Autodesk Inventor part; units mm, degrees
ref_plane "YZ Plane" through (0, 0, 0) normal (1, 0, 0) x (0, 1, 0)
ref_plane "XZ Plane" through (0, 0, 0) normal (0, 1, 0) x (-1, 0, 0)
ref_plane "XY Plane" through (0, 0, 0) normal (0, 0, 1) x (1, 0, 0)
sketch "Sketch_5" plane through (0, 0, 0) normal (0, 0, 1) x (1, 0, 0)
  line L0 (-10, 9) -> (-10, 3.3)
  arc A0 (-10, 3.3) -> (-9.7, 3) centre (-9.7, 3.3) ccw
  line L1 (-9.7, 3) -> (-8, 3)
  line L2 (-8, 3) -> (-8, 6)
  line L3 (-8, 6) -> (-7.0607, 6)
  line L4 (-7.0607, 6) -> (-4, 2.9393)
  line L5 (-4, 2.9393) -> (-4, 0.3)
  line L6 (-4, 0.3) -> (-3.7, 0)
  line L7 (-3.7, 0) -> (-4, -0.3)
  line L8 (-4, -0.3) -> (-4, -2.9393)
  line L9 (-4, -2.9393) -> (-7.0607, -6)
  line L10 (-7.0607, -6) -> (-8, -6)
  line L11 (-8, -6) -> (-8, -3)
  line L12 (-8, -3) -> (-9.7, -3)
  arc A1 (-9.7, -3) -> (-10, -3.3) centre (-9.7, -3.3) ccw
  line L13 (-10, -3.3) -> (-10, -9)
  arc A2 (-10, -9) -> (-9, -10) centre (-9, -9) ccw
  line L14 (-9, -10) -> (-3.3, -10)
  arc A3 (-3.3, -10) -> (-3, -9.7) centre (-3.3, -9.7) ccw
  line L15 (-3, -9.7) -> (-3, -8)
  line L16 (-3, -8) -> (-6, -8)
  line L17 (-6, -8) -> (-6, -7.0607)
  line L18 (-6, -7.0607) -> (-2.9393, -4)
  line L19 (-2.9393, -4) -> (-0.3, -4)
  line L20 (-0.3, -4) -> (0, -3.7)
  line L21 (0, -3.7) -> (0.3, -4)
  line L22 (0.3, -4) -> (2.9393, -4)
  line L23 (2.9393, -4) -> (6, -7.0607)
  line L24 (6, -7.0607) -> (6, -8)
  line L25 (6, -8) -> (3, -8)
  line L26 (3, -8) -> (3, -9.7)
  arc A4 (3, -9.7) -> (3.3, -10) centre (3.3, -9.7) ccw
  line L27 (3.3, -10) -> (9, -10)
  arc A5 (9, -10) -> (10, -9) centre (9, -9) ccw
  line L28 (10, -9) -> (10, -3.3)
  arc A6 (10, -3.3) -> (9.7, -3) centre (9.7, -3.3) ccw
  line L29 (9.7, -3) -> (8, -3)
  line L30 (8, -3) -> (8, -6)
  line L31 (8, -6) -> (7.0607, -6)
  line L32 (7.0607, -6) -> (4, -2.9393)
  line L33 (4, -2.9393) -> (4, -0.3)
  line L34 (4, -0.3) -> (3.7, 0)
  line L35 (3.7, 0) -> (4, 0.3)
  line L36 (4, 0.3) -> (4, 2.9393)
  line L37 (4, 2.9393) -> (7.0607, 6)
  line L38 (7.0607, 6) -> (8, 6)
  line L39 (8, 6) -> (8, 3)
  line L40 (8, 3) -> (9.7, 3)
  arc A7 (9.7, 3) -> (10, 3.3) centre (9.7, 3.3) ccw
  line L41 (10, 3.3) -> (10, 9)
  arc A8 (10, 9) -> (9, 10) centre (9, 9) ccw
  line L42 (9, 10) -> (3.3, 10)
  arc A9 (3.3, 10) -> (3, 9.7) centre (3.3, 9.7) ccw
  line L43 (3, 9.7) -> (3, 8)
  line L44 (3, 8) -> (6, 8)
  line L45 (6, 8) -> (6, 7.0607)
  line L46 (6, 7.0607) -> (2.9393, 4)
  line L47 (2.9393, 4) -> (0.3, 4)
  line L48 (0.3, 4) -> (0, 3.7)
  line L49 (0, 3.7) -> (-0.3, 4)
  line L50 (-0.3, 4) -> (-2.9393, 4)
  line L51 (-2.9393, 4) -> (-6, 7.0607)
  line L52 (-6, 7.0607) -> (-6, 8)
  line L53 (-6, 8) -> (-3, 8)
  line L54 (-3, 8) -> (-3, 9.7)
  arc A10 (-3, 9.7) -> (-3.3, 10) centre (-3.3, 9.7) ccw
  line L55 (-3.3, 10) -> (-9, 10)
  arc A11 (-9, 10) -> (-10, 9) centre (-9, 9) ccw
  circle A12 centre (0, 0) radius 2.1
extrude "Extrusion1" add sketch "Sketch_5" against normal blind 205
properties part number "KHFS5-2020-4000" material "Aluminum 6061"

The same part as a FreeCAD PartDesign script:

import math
import FreeCAD as App
import Part
import Sketcher

V = App.Vector
Q = App.Units.Quantity

doc = App.newDocument("Part")
body = doc.addObject("PartDesign::Body", "Body")

sketch1 = body.newObject("Sketcher::SketchObject", "Sketch")
sketch1.AttachmentSupport = (doc.getObject("XY_Plane"), [""])
sketch1.MapMode = "FlatFace"
sketch1.addGeometry([
    Part.ArcOfCircle(Part.Circle(V(-9, 9, 0), V(0, 0, 1), 1), math.radians(90), math.radians(180)),
    Part.LineSegment(V(-10, 9, 0), V(-10, 3.3, 0)),
    Part.ArcOfCircle(Part.Circle(V(-9.7, 3.3, 0), V(0, 0, 1), 0.3), math.radians(180), math.radians(270)),
    Part.LineSegment(V(-9.7, 3, 0), V(-8, 3, 0)),
    Part.LineSegment(V(-8, 3, 0), V(-8, 6, 0)),
    Part.LineSegment(V(-8, 6, 0), V(-7.0607, 6, 0)),
    Part.LineSegment(V(-7.0607, 6, 0), V(-4, 2.9393, 0)),
    Part.LineSegment(V(-4, 2.9393, 0), V(-4, 0.3, 0)),
    Part.LineSegment(V(-4, 0.3, 0), V(-3.7, 0, 0)),
    Part.LineSegment(V(-3.7, 0, 0), V(-4, -0.3, 0)),
    Part.LineSegment(V(-4, -0.3, 0), V(-4, -2.9393, 0)),
    Part.LineSegment(V(-4, -2.9393, 0), V(-7.0607, -6, 0)),
    Part.LineSegment(V(-7.0607, -6, 0), V(-8, -6, 0)),
    Part.LineSegment(V(-8, -6, 0), V(-8, -3, 0)),
    Part.LineSegment(V(-8, -3, 0), V(-9.7, -3, 0)),
    Part.ArcOfCircle(Part.Circle(V(-9.7, -3.3, 0), V(0, 0, 1), 0.3), math.radians(90), math.radians(180)),
    Part.LineSegment(V(-10, -3.3, 0), V(-10, -9, 0)),
    Part.ArcOfCircle(Part.Circle(V(-9, -9, 0), V(0, 0, 1), 1), math.radians(180), math.radians(270)),
    Part.LineSegment(V(-9, -10, 0), V(-3.3, -10, 0)),
    Part.ArcOfCircle(Part.Circle(V(-3.3, -9.7, 0), V(0, 0, 1), 0.3), math.radians(-90), math.radians(0)),
    Part.LineSegment(V(-3, -9.7, 0), V(-3, -8, 0)),
    Part.LineSegment(V(-3, -8, 0), V(-6, -8, 0)),
    Part.LineSegment(V(-6, -8, 0), V(-6, -7.0607, 0)),
    Part.LineSegment(V(-6, -7.0607, 0), V(-2.9393, -4, 0)),
    Part.LineSegment(V(-2.9393, -4, 0), V(-0.3, -4, 0)),
    Part.LineSegment(V(-0.3, -4, 0), V(0, -3.7, 0)),
    Part.LineSegment(V(0, -3.7, 0), V(0.3, -4, 0)),
    Part.LineSegment(V(0.3, -4, 0), V(2.9393, -4, 0)),
    Part.LineSegment(V(2.9393, -4, 0), V(6, -7.0607, 0)),
    Part.LineSegment(V(6, -7.0607, 0), V(6, -8, 0)),
    Part.LineSegment(V(6, -8, 0), V(3, -8, 0)),
    Part.LineSegment(V(3, -8, 0), V(3, -9.7, 0)),
    Part.ArcOfCircle(Part.Circle(V(3.3, -9.7, 0), V(0, 0, 1), 0.3), math.radians(180), math.radians(270)),
    Part.LineSegment(V(3.3, -10, 0), V(9, -10, 0)),
    Part.ArcOfCircle(Part.Circle(V(9, -9, 0), V(0, 0, 1), 1), math.radians(-90), math.radians(0)),
    Part.LineSegment(V(10, -9, 0), V(10, -3.3, 0)),
    Part.ArcOfCircle(Part.Circle(V(9.7, -3.3, 0), V(0, 0, 1), 0.3), math.radians(0), math.radians(90)),
    Part.LineSegment(V(9.7, -3, 0), V(8, -3, 0)),
    Part.LineSegment(V(8, -3, 0), V(8, -6, 0)),
    Part.LineSegment(V(8, -6, 0), V(7.0607, -6, 0)),
    Part.LineSegment(V(7.0607, -6, 0), V(4, -2.9393, 0)),
    Part.LineSegment(V(4, -2.9393, 0), V(4, -0.3, 0)),
    Part.LineSegment(V(4, -0.3, 0), V(3.7, 0, 0)),
    Part.LineSegment(V(3.7, 0, 0), V(4, 0.3, 0)),
    Part.LineSegment(V(4, 0.3, 0), V(4, 2.9393, 0)),
    Part.LineSegment(V(4, 2.9393, 0), V(7.0607, 6, 0)),
    Part.LineSegment(V(7.0607, 6, 0), V(8, 6, 0)),
    Part.LineSegment(V(8, 6, 0), V(8, 3, 0)),
    Part.LineSegment(V(8, 3, 0), V(9.7, 3, 0)),
    Part.ArcOfCircle(Part.Circle(V(9.7, 3.3, 0), V(0, 0, 1), 0.3), math.radians(-90), math.radians(0)),
    Part.LineSegment(V(10, 3.3, 0), V(10, 9, 0)),
    Part.ArcOfCircle(Part.Circle(V(9, 9, 0), V(0, 0, 1), 1), math.radians(0), math.radians(90)),
    Part.LineSegment(V(9, 10, 0), V(3.3, 10, 0)),
    Part.ArcOfCircle(Part.Circle(V(3.3, 9.7, 0), V(0, 0, 1), 0.3), math.radians(90), math.radians(180)),
    Part.LineSegment(V(3, 9.7, 0), V(3, 8, 0)),
    Part.LineSegment(V(3, 8, 0), V(6, 8, 0)),
    Part.LineSegment(V(6, 8, 0), V(6, 7.0607, 0)),
    Part.LineSegment(V(6, 7.0607, 0), V(2.9393, 4, 0)),
    Part.LineSegment(V(2.9393, 4, 0), V(0.3, 4, 0)),
    Part.LineSegment(V(0.3, 4, 0), V(0, 3.7, 0)),
    Part.LineSegment(V(0, 3.7, 0), V(-0.3, 4, 0)),
    Part.LineSegment(V(-0.3, 4, 0), V(-2.9393, 4, 0)),
    Part.LineSegment(V(-2.9393, 4, 0), V(-6, 7.0607, 0)),
    Part.LineSegment(V(-6, 7.0607, 0), V(-6, 8, 0)),
    Part.LineSegment(V(-6, 8, 0), V(-3, 8, 0)),
    Part.LineSegment(V(-3, 8, 0), V(-3, 9.7, 0)),
    Part.ArcOfCircle(Part.Circle(V(-3.3, 9.7, 0), V(0, 0, 1), 0.3), math.radians(0), math.radians(90)),
    Part.LineSegment(V(-3.3, 10, 0), V(-9, 10, 0)),
    Part.Circle(V(0, 0, 0), V(0, 0, 1), 2.1),
], False)
sketch1.addConstraint([
    Sketcher.Constraint("Tangent", 0, 2, 1, 1),
    Sketcher.Constraint("Tangent", 1, 2, 2, 1),
    Sketcher.Constraint("Tangent", 2, 2, 3, 1),
    Sketcher.Constraint("Coincident", 3, 2, 4, 1),
    Sketcher.Constraint("Coincident", 4, 2, 5, 1),
    Sketcher.Constraint("Coincident", 5, 2, 6, 1),
    Sketcher.Constraint("Coincident", 6, 2, 7, 1),
    Sketcher.Constraint("Coincident", 7, 2, 8, 1),
    Sketcher.Constraint("Coincident", 8, 2, 9, 1),
    Sketcher.Constraint("Coincident", 9, 2, 10, 1),
    Sketcher.Constraint("Coincident", 10, 2, 11, 1),
    Sketcher.Constraint("Coincident", 11, 2, 12, 1),
    Sketcher.Constraint("Coincident", 12, 2, 13, 1),
    Sketcher.Constraint("Coincident", 13, 2, 14, 1),
    Sketcher.Constraint("Tangent", 14, 2, 15, 1),
    Sketcher.Constraint("Tangent", 15, 2, 16, 1),
    Sketcher.Constraint("Tangent", 16, 2, 17, 1),
    Sketcher.Constraint("Tangent", 17, 2, 18, 1),
    Sketcher.Constraint("Tangent", 18, 2, 19, 1),
    Sketcher.Constraint("Tangent", 19, 2, 20, 1),
    Sketcher.Constraint("Coincident", 20, 2, 21, 1),
    Sketcher.Constraint("Coincident", 21, 2, 22, 1),
    Sketcher.Constraint("Coincident", 22, 2, 23, 1),
    Sketcher.Constraint("Coincident", 23, 2, 24, 1),
    Sketcher.Constraint("Coincident", 24, 2, 25, 1),
    Sketcher.Constraint("Coincident", 25, 2, 26, 1),
    Sketcher.Constraint("Coincident", 26, 2, 27, 1),
    Sketcher.Constraint("Coincident", 27, 2, 28, 1),
    Sketcher.Constraint("Coincident", 28, 2, 29, 1),
    Sketcher.Constraint("Coincident", 29, 2, 30, 1),
    Sketcher.Constraint("Coincident", 30, 2, 31, 1),
    Sketcher.Constraint("Tangent", 31, 2, 32, 1),
    Sketcher.Constraint("Tangent", 32, 2, 33, 1),
    Sketcher.Constraint("Tangent", 33, 2, 34, 1),
    Sketcher.Constraint("Tangent", 34, 2, 35, 1),
    Sketcher.Constraint("Tangent", 35, 2, 36, 1),
    Sketcher.Constraint("Tangent", 36, 2, 37, 1),
    Sketcher.Constraint("Coincident", 37, 2, 38, 1),
    Sketcher.Constraint("Coincident", 38, 2, 39, 1),
    Sketcher.Constraint("Coincident", 39, 2, 40, 1),
    Sketcher.Constraint("Coincident", 40, 2, 41, 1),
    Sketcher.Constraint("Coincident", 41, 2, 42, 1),
    Sketcher.Constraint("Coincident", 42, 2, 43, 1),
    Sketcher.Constraint("Coincident", 43, 2, 44, 1),
    Sketcher.Constraint("Coincident", 44, 2, 45, 1),
    Sketcher.Constraint("Coincident", 45, 2, 46, 1),
    Sketcher.Constraint("Coincident", 46, 2, 47, 1),
    Sketcher.Constraint("Coincident", 47, 2, 48, 1),
    Sketcher.Constraint("Tangent", 48, 2, 49, 1),
    Sketcher.Constraint("Tangent", 49, 2, 50, 1),
    Sketcher.Constraint("Tangent", 50, 2, 51, 1),
    Sketcher.Constraint("Tangent", 51, 2, 52, 1),
    Sketcher.Constraint("Tangent", 52, 2, 53, 1),
    Sketcher.Constraint("Tangent", 53, 2, 54, 1),
    Sketcher.Constraint("Coincident", 54, 2, 55, 1),
    Sketcher.Constraint("Coincident", 55, 2, 56, 1),
    Sketcher.Constraint("Coincident", 56, 2, 57, 1),
    Sketcher.Constraint("Coincident", 57, 2, 58, 1),
    Sketcher.Constraint("Coincident", 58, 2, 59, 1),
    Sketcher.Constraint("Coincident", 59, 2, 60, 1),
    Sketcher.Constraint("Coincident", 60, 2, 61, 1),
    Sketcher.Constraint("Coincident", 61, 2, 62, 1),
    Sketcher.Constraint("Coincident", 62, 2, 63, 1),
    Sketcher.Constraint("Coincident", 63, 2, 64, 1),
    Sketcher.Constraint("Coincident", 64, 2, 65, 1),
    Sketcher.Constraint("Tangent", 65, 2, 66, 1),
    Sketcher.Constraint("Tangent", 66, 2, 67, 1),
    Sketcher.Constraint("Tangent", 67, 2, 0, 1),
    Sketcher.Constraint("Vertical", 1),
    Sketcher.Constraint("Horizontal", 3),
    Sketcher.Constraint("Vertical", 4),
    Sketcher.Constraint("Horizontal", 5),
    Sketcher.Constraint("Vertical", 7),
    Sketcher.Constraint("Vertical", 10),
    Sketcher.Constraint("Horizontal", 12),
    Sketcher.Constraint("Vertical", 13),
    Sketcher.Constraint("Horizontal", 14),
    Sketcher.Constraint("Vertical", 16),
    Sketcher.Constraint("Horizontal", 18),
    Sketcher.Constraint("Vertical", 20),
    Sketcher.Constraint("Horizontal", 21),
    Sketcher.Constraint("Vertical", 22),
    Sketcher.Constraint("Horizontal", 24),
    Sketcher.Constraint("Horizontal", 27),
    Sketcher.Constraint("Vertical", 29),
    Sketcher.Constraint("Horizontal", 30),
    Sketcher.Constraint("Vertical", 31),
    Sketcher.Constraint("Horizontal", 33),
    Sketcher.Constraint("Vertical", 35),
    Sketcher.Constraint("Horizontal", 37),
    Sketcher.Constraint("Vertical", 38),
    Sketcher.Constraint("Horizontal", 39),
    Sketcher.Constraint("Vertical", 41),
    Sketcher.Constraint("Vertical", 44),
    Sketcher.Constraint("Horizontal", 46),
    Sketcher.Constraint("Vertical", 47),
    Sketcher.Constraint("Horizontal", 48),
    Sketcher.Constraint("Vertical", 50),
    Sketcher.Constraint("Horizontal", 52),
    Sketcher.Constraint("Vertical", 54),
    Sketcher.Constraint("Horizontal", 55),
    Sketcher.Constraint("Vertical", 56),
    Sketcher.Constraint("Horizontal", 58),
    Sketcher.Constraint("Horizontal", 61),
    Sketcher.Constraint("Vertical", 63),
    Sketcher.Constraint("Horizontal", 64),
    Sketcher.Constraint("Vertical", 65),
    Sketcher.Constraint("Horizontal", 67),
    Sketcher.Constraint("Coincident", 68, 3, -1, 1),
    Sketcher.Constraint("Equal", 2, 15),
    Sketcher.Constraint("Equal", 0, 17),
    Sketcher.Constraint("Equal", 15, 19),
    Sketcher.Constraint("Equal", 19, 32),
    Sketcher.Constraint("Equal", 17, 34),
    Sketcher.Constraint("Equal", 32, 36),
    Sketcher.Constraint("Equal", 36, 49),
    Sketcher.Constraint("Equal", 34, 51),
    Sketcher.Constraint("Equal", 49, 53),
    Sketcher.Constraint("Equal", 53, 66),
    Sketcher.Constraint("Symmetric", 0, 3, 34, 3, -1, 1),
    Sketcher.Constraint("Symmetric", 15, 3, 49, 3, -1, 1),
    Sketcher.Constraint("Symmetric", 19, 3, 53, 3, -1, 1),
    Sketcher.Constraint("Symmetric", 3, 2, 37, 2, -1, 1),
    Sketcher.Constraint("Symmetric", 5, 2, 39, 2, -1, 1),
    Sketcher.Constraint("Symmetric", 6, 2, 40, 2, -1, 1),
    Sketcher.Constraint("Symmetric", 8, 2, 42, 2, -1, 1),
    Sketcher.Constraint("Symmetric", 9, 2, 43, 2, -1, 1),
    Sketcher.Constraint("Symmetric", 11, 2, 45, 2, -1, 1),
    Sketcher.Constraint("Symmetric", 21, 2, 55, 2, -1, 1),
    Sketcher.Constraint("Symmetric", 23, 2, 57, 2, -1, 1),
    Sketcher.Constraint("Symmetric", 25, 2, 59, 2, -1, 1),
    Sketcher.Constraint("Symmetric", 26, 2, 60, 2, -1, 1),
    Sketcher.Constraint("Symmetric", 28, 2, 62, 2, -1, 1),
    Sketcher.Constraint("Symmetric", 30, 2, 64, 2, -1, 1),
    Sketcher.Constraint("Symmetric", 19, 3, 32, 3, -2),
    Sketcher.Constraint("Symmetric", 15, 3, 36, 3, -2),
    Sketcher.Constraint("Symmetric", 24, 2, 26, 2, -2),
    Sketcher.Constraint("Symmetric", 22, 2, 28, 2, -2),
    Sketcher.Constraint("Symmetric", 12, 2, 38, 2, -2),
    Sketcher.Constraint("Symmetric", 10, 2, 40, 2, -2),
    Sketcher.Constraint("PointOnObject", 8, 2, -1),
    Sketcher.Constraint("PointOnObject", 25, 2, -2),
    Sketcher.Constraint("Parallel", 6, 8),
    Sketcher.Constraint("Perpendicular", 8, 9),
    Sketcher.Constraint("Parallel", 9, 11),
    Sketcher.Constraint("Parallel", 11, 23),
    Sketcher.Constraint("Parallel", 23, 25),
    Sketcher.Constraint("Perpendicular", 25, 26),
    Sketcher.Constraint("Parallel", 26, 28),
    Sketcher.Constraint("Parallel", 40, 42),
    Sketcher.Constraint("Parallel", 43, 45),
    Sketcher.Constraint("Parallel", 45, 57),
    Sketcher.Constraint("Parallel", 57, 59),
    Sketcher.Constraint("Parallel", 60, 62),
    Sketcher.Constraint("Horizontal", 21, 2, 29, 2),
    Sketcher.Constraint("Vertical", 38, 2, 46, 2),
    Sketcher.Constraint("Equal", 67, 1),
    Sketcher.Constraint("Equal", 64, 4),
    Sketcher.Constraint("Equal", 61, 7),
    Sketcher.Constraint("Equal", 48, 20),
    Sketcher.Constraint("Equal", 46, 22),
    Sketcher.Constraint("Equal", 11, 23),
    Sketcher.Constraint("Equal", 9, 25),
    Sketcher.Constraint("Radius", 0, Q("1 mm")),
    Sketcher.Constraint("Diameter", 68, Q("4.2 mm")),
    Sketcher.Constraint("Radius", 2, Q("0.3 mm")),
    Sketcher.Constraint("DistanceX", 21, 2, 21, 1, Q("3 mm")),
    Sketcher.Constraint("DistanceX", 3, 1, 3, 2, Q("1.7 mm")),
    Sketcher.Constraint("DistanceX", 18, 1, 18, 2, Q("5.7 mm")),
    Sketcher.Constraint("DistanceX", 0, 3, -1, 1, Q("9 mm")),
    Sketcher.Constraint("DistanceX", 6, 2, -1, 1, Q("4 mm")),
    Sketcher.Constraint("DistanceY", -1, 1, 7, 2, Q("0.3 mm")),
    Sketcher.Constraint("DistanceX", 5, 1, 5, 2, Q("0.9393 mm")),
])
pad1 = body.newObject("PartDesign::Pad", "Pad")
pad1.Profile = sketch1
pad1.Length = 205
pad1.Reversed = True

doc.recompute()
